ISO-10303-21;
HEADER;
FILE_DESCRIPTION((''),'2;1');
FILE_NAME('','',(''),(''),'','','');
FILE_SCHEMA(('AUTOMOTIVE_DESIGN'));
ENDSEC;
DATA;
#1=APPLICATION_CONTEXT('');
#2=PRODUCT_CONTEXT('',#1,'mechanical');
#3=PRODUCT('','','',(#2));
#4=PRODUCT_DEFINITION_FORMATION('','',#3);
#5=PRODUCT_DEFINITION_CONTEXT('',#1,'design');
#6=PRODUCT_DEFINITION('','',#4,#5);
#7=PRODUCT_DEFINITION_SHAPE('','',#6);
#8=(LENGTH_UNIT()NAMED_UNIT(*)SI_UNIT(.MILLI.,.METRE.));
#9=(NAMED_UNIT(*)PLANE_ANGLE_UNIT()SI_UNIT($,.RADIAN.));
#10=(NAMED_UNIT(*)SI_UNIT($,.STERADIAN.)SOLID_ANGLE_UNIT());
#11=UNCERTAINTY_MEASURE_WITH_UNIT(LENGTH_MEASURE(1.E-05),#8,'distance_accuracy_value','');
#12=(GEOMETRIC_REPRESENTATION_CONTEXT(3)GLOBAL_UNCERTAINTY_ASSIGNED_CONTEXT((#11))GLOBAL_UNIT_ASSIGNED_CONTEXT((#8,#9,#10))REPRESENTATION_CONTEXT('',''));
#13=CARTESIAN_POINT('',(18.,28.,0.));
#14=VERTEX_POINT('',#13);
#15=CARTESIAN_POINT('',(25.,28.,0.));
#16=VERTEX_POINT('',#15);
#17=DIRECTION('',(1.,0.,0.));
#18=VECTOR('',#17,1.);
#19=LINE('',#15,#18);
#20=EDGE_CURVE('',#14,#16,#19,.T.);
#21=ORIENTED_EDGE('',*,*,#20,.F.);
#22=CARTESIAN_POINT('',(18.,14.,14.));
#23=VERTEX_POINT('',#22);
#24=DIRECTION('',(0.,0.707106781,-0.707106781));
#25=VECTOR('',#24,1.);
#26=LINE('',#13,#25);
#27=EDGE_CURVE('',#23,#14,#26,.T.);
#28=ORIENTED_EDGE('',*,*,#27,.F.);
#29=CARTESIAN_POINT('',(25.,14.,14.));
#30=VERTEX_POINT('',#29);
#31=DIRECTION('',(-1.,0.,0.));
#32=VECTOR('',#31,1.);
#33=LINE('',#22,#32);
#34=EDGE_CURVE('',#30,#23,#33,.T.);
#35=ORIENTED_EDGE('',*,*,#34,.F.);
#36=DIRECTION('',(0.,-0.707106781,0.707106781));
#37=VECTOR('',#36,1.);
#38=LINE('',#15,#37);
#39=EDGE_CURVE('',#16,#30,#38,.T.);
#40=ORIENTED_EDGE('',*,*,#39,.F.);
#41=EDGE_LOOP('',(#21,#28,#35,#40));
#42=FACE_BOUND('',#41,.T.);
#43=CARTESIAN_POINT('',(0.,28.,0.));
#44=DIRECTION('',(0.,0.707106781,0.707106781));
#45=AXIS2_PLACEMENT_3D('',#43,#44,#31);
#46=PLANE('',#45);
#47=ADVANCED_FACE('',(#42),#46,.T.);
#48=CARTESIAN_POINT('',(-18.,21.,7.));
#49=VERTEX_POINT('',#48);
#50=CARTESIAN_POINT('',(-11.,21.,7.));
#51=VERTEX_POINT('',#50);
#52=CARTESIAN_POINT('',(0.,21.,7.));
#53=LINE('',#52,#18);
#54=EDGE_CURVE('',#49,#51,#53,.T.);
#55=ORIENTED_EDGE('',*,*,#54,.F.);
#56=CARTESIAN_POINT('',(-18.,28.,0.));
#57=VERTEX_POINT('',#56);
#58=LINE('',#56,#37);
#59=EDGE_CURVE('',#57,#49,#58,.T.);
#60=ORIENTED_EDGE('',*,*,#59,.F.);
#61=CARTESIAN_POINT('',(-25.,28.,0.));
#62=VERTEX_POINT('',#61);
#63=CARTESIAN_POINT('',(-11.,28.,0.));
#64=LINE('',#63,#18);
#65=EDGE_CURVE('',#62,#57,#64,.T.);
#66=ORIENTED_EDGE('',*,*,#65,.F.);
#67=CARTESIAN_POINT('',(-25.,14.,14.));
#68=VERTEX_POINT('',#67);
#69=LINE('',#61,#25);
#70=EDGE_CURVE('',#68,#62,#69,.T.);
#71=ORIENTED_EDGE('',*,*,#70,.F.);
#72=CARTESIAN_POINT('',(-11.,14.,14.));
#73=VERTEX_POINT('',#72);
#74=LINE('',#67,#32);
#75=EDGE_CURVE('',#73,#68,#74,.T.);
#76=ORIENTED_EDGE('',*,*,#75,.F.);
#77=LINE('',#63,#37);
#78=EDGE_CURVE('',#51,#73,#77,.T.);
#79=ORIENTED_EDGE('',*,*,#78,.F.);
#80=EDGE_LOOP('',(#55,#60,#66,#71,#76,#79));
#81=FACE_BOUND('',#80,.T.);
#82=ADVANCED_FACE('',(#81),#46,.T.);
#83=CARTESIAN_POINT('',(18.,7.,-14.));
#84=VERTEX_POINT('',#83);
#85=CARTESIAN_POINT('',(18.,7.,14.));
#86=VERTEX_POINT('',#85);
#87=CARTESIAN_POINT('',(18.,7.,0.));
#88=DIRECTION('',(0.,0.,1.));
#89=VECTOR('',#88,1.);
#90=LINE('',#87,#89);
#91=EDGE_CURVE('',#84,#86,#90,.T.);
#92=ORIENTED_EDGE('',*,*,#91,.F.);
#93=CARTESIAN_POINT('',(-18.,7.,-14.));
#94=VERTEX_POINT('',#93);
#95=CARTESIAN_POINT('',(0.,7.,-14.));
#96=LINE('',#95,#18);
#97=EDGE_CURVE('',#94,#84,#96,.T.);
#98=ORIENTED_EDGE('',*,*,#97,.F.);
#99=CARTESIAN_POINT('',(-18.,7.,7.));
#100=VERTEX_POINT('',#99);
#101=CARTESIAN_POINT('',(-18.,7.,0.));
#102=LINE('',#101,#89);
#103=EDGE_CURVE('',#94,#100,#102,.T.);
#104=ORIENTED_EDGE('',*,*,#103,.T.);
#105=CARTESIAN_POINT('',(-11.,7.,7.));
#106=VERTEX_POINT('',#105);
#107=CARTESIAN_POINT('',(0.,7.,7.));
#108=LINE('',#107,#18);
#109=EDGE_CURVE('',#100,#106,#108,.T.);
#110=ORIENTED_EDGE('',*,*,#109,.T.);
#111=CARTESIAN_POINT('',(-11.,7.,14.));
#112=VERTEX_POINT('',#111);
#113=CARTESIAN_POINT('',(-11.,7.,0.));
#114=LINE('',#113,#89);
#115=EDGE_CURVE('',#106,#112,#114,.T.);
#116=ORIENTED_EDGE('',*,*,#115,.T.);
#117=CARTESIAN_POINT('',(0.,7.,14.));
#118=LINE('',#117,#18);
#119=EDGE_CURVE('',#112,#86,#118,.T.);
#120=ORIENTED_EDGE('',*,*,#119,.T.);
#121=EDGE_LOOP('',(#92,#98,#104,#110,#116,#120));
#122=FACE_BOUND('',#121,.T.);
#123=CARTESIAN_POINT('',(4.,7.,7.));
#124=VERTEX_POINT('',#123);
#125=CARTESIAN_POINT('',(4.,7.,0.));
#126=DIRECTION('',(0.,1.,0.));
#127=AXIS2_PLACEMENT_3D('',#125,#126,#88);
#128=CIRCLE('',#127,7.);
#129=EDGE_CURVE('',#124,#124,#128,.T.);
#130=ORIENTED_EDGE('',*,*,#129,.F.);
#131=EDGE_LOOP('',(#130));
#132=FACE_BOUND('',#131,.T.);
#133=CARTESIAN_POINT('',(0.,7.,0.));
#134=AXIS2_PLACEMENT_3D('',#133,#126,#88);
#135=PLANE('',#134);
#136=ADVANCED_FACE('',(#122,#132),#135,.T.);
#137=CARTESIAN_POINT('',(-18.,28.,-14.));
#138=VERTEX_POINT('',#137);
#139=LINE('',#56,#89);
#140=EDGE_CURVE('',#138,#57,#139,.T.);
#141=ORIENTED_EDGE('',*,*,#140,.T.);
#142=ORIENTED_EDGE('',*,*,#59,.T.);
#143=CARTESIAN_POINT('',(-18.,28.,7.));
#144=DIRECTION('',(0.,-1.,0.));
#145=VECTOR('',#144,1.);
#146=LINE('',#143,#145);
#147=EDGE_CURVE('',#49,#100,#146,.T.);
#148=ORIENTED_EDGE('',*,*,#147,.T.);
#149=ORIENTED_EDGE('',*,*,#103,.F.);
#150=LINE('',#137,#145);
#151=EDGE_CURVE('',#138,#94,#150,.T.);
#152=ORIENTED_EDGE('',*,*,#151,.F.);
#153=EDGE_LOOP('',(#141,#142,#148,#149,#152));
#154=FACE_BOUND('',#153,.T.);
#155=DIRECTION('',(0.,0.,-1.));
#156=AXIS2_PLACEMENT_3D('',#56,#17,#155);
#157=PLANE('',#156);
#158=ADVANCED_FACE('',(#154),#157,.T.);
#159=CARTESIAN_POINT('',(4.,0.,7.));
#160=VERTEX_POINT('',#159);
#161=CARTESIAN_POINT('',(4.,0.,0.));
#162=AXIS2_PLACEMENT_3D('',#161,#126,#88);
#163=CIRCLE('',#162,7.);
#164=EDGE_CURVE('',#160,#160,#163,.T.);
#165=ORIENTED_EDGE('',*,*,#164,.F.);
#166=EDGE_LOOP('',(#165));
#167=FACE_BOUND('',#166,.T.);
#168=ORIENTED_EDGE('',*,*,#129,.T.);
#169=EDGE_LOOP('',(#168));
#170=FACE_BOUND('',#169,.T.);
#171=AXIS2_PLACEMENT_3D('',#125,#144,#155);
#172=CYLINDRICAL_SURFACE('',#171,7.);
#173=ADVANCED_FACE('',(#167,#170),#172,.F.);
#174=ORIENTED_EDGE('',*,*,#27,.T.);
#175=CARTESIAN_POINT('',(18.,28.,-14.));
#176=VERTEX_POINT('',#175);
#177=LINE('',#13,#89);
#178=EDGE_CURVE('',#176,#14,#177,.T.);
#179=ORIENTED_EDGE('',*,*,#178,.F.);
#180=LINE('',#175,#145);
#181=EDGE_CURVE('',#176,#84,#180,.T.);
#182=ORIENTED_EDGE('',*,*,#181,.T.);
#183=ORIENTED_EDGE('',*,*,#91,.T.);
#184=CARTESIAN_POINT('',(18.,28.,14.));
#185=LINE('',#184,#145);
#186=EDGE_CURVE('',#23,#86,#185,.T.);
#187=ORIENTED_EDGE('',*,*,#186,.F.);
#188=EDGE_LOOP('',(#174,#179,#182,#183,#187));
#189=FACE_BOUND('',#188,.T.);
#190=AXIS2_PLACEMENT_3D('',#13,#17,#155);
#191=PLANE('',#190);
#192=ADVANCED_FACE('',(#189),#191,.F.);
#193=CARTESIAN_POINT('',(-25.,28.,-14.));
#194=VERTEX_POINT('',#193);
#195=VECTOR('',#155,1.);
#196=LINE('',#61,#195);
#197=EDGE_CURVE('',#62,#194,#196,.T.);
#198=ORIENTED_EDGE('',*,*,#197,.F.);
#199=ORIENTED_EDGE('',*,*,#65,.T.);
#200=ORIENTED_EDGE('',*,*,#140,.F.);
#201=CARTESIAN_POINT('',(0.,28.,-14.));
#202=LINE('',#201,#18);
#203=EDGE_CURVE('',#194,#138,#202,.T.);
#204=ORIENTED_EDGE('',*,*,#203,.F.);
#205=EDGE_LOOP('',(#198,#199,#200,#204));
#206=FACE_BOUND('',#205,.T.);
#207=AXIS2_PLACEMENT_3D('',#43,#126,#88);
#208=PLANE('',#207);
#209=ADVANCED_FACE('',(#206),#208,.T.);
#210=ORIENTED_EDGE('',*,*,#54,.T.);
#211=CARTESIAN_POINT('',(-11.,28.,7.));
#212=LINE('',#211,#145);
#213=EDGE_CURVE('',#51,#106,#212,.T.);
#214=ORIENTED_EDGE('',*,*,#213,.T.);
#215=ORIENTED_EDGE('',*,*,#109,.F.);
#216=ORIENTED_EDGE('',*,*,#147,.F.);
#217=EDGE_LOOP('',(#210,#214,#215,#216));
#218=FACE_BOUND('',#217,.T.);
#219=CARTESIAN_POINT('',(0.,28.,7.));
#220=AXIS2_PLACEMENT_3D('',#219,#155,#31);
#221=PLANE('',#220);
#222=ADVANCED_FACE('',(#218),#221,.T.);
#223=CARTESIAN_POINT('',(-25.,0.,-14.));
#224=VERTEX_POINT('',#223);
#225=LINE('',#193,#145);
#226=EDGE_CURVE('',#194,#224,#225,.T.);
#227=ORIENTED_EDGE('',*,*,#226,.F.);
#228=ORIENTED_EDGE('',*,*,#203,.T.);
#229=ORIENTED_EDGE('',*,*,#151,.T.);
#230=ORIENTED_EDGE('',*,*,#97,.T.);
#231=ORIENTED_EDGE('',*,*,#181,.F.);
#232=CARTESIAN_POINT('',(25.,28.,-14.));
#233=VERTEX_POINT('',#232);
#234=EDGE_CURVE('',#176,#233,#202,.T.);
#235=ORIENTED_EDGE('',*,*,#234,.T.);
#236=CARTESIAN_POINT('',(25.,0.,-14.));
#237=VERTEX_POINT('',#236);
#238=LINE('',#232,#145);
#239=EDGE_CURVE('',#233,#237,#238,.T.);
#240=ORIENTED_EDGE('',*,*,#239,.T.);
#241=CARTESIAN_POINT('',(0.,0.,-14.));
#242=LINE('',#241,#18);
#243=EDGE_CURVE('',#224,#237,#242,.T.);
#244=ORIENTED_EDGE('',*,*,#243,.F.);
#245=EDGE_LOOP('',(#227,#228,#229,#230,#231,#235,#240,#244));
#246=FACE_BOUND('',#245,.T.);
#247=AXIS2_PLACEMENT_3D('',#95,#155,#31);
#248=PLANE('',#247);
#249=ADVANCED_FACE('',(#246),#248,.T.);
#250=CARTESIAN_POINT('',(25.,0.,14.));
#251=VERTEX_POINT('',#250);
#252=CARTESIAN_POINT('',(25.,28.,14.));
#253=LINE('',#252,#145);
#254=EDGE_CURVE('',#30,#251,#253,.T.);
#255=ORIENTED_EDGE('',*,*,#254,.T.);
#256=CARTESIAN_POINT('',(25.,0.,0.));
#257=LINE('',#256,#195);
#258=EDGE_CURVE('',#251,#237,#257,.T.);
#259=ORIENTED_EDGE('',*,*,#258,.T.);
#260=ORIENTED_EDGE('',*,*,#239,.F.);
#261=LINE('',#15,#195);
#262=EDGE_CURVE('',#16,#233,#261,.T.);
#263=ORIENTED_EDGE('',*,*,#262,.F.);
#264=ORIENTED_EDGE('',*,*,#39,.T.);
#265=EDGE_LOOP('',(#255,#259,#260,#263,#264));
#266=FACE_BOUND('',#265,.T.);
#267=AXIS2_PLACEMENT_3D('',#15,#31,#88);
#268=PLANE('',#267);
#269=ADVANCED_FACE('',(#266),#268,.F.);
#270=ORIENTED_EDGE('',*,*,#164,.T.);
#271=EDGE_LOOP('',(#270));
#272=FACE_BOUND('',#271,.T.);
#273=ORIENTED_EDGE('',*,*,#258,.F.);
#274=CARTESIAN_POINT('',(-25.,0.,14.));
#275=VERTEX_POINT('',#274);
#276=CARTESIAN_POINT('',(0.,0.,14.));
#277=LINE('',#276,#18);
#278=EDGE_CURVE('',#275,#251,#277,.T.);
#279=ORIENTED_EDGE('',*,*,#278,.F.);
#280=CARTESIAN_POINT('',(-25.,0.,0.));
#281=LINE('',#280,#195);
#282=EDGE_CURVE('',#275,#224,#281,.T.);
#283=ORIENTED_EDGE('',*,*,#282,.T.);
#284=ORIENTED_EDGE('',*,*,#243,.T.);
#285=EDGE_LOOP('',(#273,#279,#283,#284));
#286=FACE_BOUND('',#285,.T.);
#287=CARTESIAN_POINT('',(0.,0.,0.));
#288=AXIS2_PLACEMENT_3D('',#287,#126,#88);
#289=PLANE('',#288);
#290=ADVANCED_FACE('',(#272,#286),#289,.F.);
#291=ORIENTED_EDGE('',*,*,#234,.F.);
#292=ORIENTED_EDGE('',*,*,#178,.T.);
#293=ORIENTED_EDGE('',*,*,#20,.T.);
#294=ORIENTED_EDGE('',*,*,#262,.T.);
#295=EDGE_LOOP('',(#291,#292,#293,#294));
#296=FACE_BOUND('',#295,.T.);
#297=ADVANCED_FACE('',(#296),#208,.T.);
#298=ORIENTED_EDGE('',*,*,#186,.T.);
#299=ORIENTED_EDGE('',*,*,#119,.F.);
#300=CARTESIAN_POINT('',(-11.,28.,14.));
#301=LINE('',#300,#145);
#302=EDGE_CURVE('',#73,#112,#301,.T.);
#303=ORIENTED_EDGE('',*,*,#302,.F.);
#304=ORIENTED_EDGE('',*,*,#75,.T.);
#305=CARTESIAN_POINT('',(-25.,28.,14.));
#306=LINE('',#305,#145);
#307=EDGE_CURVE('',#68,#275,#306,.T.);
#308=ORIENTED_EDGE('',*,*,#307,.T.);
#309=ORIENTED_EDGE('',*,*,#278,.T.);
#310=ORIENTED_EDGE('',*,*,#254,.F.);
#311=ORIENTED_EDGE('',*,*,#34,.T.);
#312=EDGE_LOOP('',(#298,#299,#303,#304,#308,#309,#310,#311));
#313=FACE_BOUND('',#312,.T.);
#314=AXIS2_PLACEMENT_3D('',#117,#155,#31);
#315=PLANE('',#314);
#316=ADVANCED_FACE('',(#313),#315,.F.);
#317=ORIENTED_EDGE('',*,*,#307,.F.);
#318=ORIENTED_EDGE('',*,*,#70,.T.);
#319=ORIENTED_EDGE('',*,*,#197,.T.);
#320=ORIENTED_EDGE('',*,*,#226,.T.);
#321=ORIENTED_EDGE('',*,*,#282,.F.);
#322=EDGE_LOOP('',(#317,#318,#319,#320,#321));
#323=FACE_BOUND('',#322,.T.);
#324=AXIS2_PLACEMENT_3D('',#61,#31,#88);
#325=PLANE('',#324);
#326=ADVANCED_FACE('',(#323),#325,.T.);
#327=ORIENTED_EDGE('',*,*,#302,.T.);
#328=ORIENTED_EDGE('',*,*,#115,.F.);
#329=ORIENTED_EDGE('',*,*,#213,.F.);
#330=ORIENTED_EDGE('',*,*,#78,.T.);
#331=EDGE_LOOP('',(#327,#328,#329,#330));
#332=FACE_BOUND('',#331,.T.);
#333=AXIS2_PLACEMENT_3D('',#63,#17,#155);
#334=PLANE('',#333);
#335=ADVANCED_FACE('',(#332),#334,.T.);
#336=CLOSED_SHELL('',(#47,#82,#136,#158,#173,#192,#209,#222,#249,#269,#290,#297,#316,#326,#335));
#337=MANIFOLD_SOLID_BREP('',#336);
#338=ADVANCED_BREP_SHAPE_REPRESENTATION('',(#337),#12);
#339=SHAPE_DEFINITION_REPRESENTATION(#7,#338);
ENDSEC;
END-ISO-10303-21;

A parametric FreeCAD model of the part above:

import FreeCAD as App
import Part
import Sketcher
from FreeCAD import Vector


def edges_at(feature, points):
    """Names of the edges that pass closest to the given points."""
    edges = feature.Shape.Edges
    near = lambda p: min(range(len(edges)), key=lambda i: edges[i].distToShape(Part.Vertex(*p))[0])
    return sorted({f"Edge{near(p) + 1}" for p in points})

doc = App.newDocument("Part")
body = doc.addObject("PartDesign::Body", "Body")

sketch1 = body.newObject("Sketcher::SketchObject", "Sketch")
sketch1.AttachmentSupport = (doc.getObject("XZ_Plane"), [""])
sketch1.MapMode = "FlatFace"
sketch1.addGeometry([
    Part.LineSegment(Vector(18, 14, 0), Vector(18, -14, 0)),
    Part.LineSegment(Vector(18, -14, 0), Vector(-18, -14, 0)),
    Part.LineSegment(Vector(-18, -14, 0), Vector(-18, 7, 0)),
    Part.LineSegment(Vector(-18, 7, 0), Vector(-11, 7, 0)),
    Part.LineSegment(Vector(-11, 7, 0), Vector(-11, 14, 0)),
    Part.LineSegment(Vector(-11, 14, 0), Vector(18, 14, 0)),
    Part.Circle(Vector(4, 0, 0), Vector(0, 0, 1), 7),
], False)
sketch1.addConstraint([
    Sketcher.Constraint("Coincident", 0, 2, 1, 1),
    Sketcher.Constraint("Coincident", 1, 2, 2, 1),
    Sketcher.Constraint("Coincident", 2, 2, 3, 1),
    Sketcher.Constraint("Coincident", 3, 2, 4, 1),
    Sketcher.Constraint("Coincident", 4, 2, 5, 1),
    Sketcher.Constraint("Coincident", 5, 2, 0, 1),
    Sketcher.Constraint("Vertical", 0),
    Sketcher.Constraint("Horizontal", 1),
    Sketcher.Constraint("Vertical", 2),
    Sketcher.Constraint("Horizontal", 3),
    Sketcher.Constraint("Vertical", 4),
    Sketcher.Constraint("Horizontal", 5),
    Sketcher.Constraint("Symmetric", 1, 2, 5, 2, -1, 1),
    Sketcher.Constraint("PointOnObject", 6, 3, -1),
    Sketcher.Constraint("Equal", 3, 4),
    Sketcher.Constraint("Diameter", 6, 14.0),
    Sketcher.Constraint("DistanceX", 1, 2, 1, 1, 36.0),
    Sketcher.Constraint("DistanceX", 3, 1, 3, 2, 7.0),
    Sketcher.Constraint("DistanceY", 0, 2, 0, 1, 28.0),
    Sketcher.Constraint("DistanceX", -1, 1, 6, 3, 4.0),
])
pad1 = body.newObject("PartDesign::Pad", "Pad")
pad1.Profile = sketch1
pad1.Length = 7
pad1.Reversed = True

sketch2 = body.newObject("Sketcher::SketchObject", "Sketch001")
sketch2.AttachmentSupport = (doc.getObject("XZ_Plane"), [""])
sketch2.MapMode = "FlatFace"
sketch2.addGeometry([
    Part.LineSegment(Vector(-18, 7, 0), Vector(-18, -14, 0)),
    Part.LineSegment(Vector(-18, -14, 0), Vector(-25, -14, 0)),
    Part.LineSegment(Vector(-25, -14, 0), Vector(-25, 14, 0)),
    Part.LineSegment(Vector(-25, 14, 0), Vector(-11, 14, 0)),
    Part.LineSegment(Vector(-11, 14, 0), Vector(-11, 7, 0)),
    Part.LineSegment(Vector(-11, 7, 0), Vector(-18, 7, 0)),
    Part.LineSegment(Vector(18, -14, 0), Vector(18, 14, 0)),
    Part.LineSegment(Vector(18, 14, 0), Vector(25, 14, 0)),
    Part.LineSegment(Vector(25, 14, 0), Vector(25, -14, 0)),
    Part.LineSegment(Vector(25, -14, 0), Vector(18, -14, 0)),
], False)
sketch2.addConstraint([
    Sketcher.Constraint("Coincident", 0, 2, 1, 1),
    Sketcher.Constraint("Coincident", 1, 2, 2, 1),
    Sketcher.Constraint("Coincident", 2, 2, 3, 1),
    Sketcher.Constraint("Coincident", 3, 2, 4, 1),
    Sketcher.Constraint("Coincident", 4, 2, 5, 1),
    Sketcher.Constraint("Coincident", 5, 2, 0, 1),
    Sketcher.Constraint("Coincident", 6, 2, 7, 1),
    Sketcher.Constraint("Coincident", 7, 2, 8, 1),
    Sketcher.Constraint("Coincident", 8, 2, 9, 1),
    Sketcher.Constraint("Coincident", 9, 2, 6, 1),
    Sketcher.Constraint("Vertical", 0),
    Sketcher.Constraint("Horizontal", 1),
    Sketcher.Constraint("Vertical", 2),
    Sketcher.Constraint("Horizontal", 3),
    Sketcher.Constraint("Vertical", 4),
    Sketcher.Constraint("Horizontal", 5),
    Sketcher.Constraint("Vertical", 6),
    Sketcher.Constraint("Horizontal", 7),
    Sketcher.Constraint("Vertical", 8),
    Sketcher.Constraint("Horizontal", 9),
    Sketcher.Constraint("Symmetric", 0, 2, 6, 2, -1, 1),
    Sketcher.Constraint("Symmetric", 2, 2, 8, 2, -1, 1),
    Sketcher.Constraint("Horizontal", 3, 2, 6, 2),
    Sketcher.Constraint("Equal", 1, 5),
    Sketcher.Constraint("Equal", 9, 4),
    Sketcher.Constraint("DistanceX", 1, 2, 1, 1, 7.0),
    Sketcher.Constraint("DistanceY", 0, 2, 0, 1, 21.0),
    Sketcher.Constraint("DistanceX", 0, 2, -1, 1, 18.0),
])
pad2 = body.newObject("PartDesign::Pad", "Pad001")
pad2.Profile = sketch2
pad2.Length = 28
pad2.Reversed = True
doc.recompute()

chamfer = body.newObject("PartDesign::Chamfer", "Chamfer")
chamfer.Base = (pad2, edges_at(pad2, [(-18, 28, 14), (21.5, 28, 14)]))
chamfer.Size = 14

doc.recompute()
